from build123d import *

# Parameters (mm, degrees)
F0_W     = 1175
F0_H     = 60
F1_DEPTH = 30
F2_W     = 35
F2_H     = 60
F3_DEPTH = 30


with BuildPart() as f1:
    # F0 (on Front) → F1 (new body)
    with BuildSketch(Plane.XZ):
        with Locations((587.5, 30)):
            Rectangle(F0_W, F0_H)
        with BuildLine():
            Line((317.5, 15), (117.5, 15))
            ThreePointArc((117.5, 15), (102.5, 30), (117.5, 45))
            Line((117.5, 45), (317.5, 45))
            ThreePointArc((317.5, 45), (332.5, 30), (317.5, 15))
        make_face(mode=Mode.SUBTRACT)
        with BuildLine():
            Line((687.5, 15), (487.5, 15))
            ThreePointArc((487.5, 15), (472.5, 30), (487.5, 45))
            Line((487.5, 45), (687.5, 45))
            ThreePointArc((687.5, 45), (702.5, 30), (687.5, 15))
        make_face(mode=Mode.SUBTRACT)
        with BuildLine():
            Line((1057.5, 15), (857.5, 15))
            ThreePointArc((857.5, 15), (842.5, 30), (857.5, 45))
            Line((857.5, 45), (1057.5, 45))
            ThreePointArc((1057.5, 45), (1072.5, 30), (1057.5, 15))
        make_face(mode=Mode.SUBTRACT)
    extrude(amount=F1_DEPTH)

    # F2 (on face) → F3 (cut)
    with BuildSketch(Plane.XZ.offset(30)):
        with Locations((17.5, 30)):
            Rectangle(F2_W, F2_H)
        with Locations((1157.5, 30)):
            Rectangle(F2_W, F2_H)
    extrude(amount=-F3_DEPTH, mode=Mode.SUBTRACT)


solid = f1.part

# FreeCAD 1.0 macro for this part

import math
import FreeCAD as App
import Part
import Sketcher

V = App.Vector


def add_polygon(sketch, points):
    """Adds a closed chain of lines whose ends are joined by coincident constraints."""
    first, n = sketch.GeometryCount, len(points)
    for a, b in zip(points, points[1:] + points[:1]):
        sketch.addGeometry(Part.LineSegment(App.Vector(*a, 0), App.Vector(*b, 0)), False)
    for i in range(n):
        sketch.addConstraint(Sketcher.Constraint("Coincident", first + i, 2, first + (i + 1) % n, 1))

doc = App.newDocument("Part")
body = doc.addObject("PartDesign::Body", "Body")

# Sketch on XZ plane
sketch1 = body.newObject("Sketcher::SketchObject", "Sketch")
sketch1.AttachmentSupport = (doc.getObject("XZ_Plane"), [""])
sketch1.MapMode = "FlatFace"
add_polygon(sketch1, [(0, 60), (0, 0), (1175, 0), (1175, 60)])  # lines 0-3
sketch1.addGeometry(Part.ArcOfCircle(Part.Circle(V(318, 30, 0), V(0, 0, 1), 15), math.radians(-90), math.radians(90)), False)  # 4
sketch1.addGeometry(Part.LineSegment(V(318, 15, 0), V(118, 15, 0)), False)  # 5
sketch1.addGeometry(Part.ArcOfCircle(Part.Circle(V(118, 30, 0), V(0, 0, 1), 15), math.radians(90), math.radians(270)), False)  # 6
sketch1.addGeometry(Part.LineSegment(V(118, 45, 0), V(318, 45, 0)), False)  # 7
sketch1.addGeometry(Part.ArcOfCircle(Part.Circle(V(688, 30, 0), V(0, 0, 1), 15), math.radians(-90), math.radians(90)), False)  # 8
sketch1.addGeometry(Part.LineSegment(V(688, 15, 0), V(488, 15, 0)), False)  # 9
sketch1.addGeometry(Part.ArcOfCircle(Part.Circle(V(488, 30, 0), V(0, 0, 1), 15), math.radians(90), math.radians(270)), False)  # 10
sketch1.addGeometry(Part.LineSegment(V(488, 45, 0), V(688, 45, 0)), False)  # 11
sketch1.addGeometry(Part.ArcOfCircle(Part.Circle(V(1058, 30, 0), V(0, 0, 1), 15), math.radians(-90), math.radians(90)), False)  # 12
sketch1.addGeometry(Part.LineSegment(V(1058, 15, 0), V(858, 15, 0)), False)  # 13
sketch1.addGeometry(Part.ArcOfCircle(Part.Circle(V(858, 30, 0), V(0, 0, 1), 15), math.radians(90), math.radians(270)), False)  # 14
sketch1.addGeometry(Part.LineSegment(V(858, 45, 0), V(1058, 45, 0)), False)  # 15
sketch1.addConstraint(Sketcher.Constraint("Tangent", 4, 1, 5, 1))
sketch1.addConstraint(Sketcher.Constraint("Tangent", 5, 2, 6, 2))
sketch1.addConstraint(Sketcher.Constraint("Tangent", 6, 1, 7, 1))
sketch1.addConstraint(Sketcher.Constraint("Tangent", 7, 2, 4, 2))
sketch1.addConstraint(Sketcher.Constraint("Tangent", 8, 1, 9, 1))
sketch1.addConstraint(Sketcher.Constraint("Tangent", 9, 2, 10, 2))
sketch1.addConstraint(Sketcher.Constraint("Tangent", 10, 1, 11, 1))
sketch1.addConstraint(Sketcher.Constraint("Tangent", 11, 2, 8, 2))
sketch1.addConstraint(Sketcher.Constraint("Tangent", 12, 1, 13, 1))
sketch1.addConstraint(Sketcher.Constraint("Tangent", 13, 2, 14, 2))
sketch1.addConstraint(Sketcher.Constraint("Tangent", 14, 1, 15, 1))
sketch1.addConstraint(Sketcher.Constraint("Tangent", 15, 2, 12, 2))
sketch1.addConstraint(Sketcher.Constraint("Vertical", 0))
sketch1.addConstraint(Sketcher.Constraint("Horizontal", 1))
sketch1.addConstraint(Sketcher.Constraint("Vertical", 2))
sketch1.addConstraint(Sketcher.Constraint("Horizontal", 3))
sketch1.addConstraint(Sketcher.Constraint("Horizontal", 5))
sketch1.addConstraint(Sketcher.Constraint("Horizontal", 7))
sketch1.addConstraint(Sketcher.Constraint("Horizontal", 9))
sketch1.addConstraint(Sketcher.Constraint("Horizontal", 11))
sketch1.addConstraint(Sketcher.Constraint("Horizontal", 13))
sketch1.addConstraint(Sketcher.Constraint("Horizontal", 15))
sketch1.addConstraint(Sketcher.Constraint("Coincident", 0, 2, -1, 1))
sketch1.addConstraint(Sketcher.Constraint("Equal", 6, 8))
sketch1.addConstraint(Sketcher.Constraint("Equal", 10, 12))
sketch1.addConstraint(Sketcher.Constraint("Horizontal", 6, 3, 8, 3))
sketch1.addConstraint(Sketcher.Constraint("Horizontal", 10, 3, 12, 3))
sketch1.addConstraint(Sketcher.Constraint("Equal", 7, 9))
sketch1.addConstraint(Sketcher.Constraint("Equal", 11, 13))
sketch1.addConstraint(Sketcher.Constraint("Radius", 4, 15.0))
sketch1.addConstraint(Sketcher.Constraint("DistanceX", 1, 1, 1, 2, 1175.0))
sketch1.addConstraint(Sketcher.Constraint("DistanceX", 5, 2, 5, 1, 200.0))
sketch1.addConstraint(Sketcher.Constraint("DistanceY", 0, 2, 0, 1, 60.0))
sketch1.addConstraint(Sketcher.Constraint("DistanceY", -1, 1, 4, 3, 30.0))
sketch1.addConstraint(Sketcher.Constraint("DistanceX", 4, 3, 8, 3, 370.0))
sketch1.addConstraint(Sketcher.Constraint("DistanceX", 8, 3, 12, 3, 370.0))
sketch1.addConstraint(Sketcher.Constraint("DistanceX", -1, 1, 4, 3, 317.5))
pad1 = body.newObject("PartDesign::Pad", "Pad")
pad1.Profile = sketch1
pad1.Length = 30

# Sketch on XZ plane
sketch2 = body.newObject("Sketcher::SketchObject", "Sketch001")
sketch2.AttachmentSupport = (doc.getObject("XZ_Plane"), [""])
sketch2.MapMode = "FlatFace"
sketch2.AttachmentOffset = App.Placement(V(0, 0, 30), App.Rotation())
add_polygon(sketch2, [(0, 60), (0, 0), (35, 0), (35, 60)])  # lines 0-3
add_polygon(sketch2, [(1140, 60), (1140, 0), (1175, 0), (1175, 60)])  # lines 4-7
sketch2.addConstraint(Sketcher.Constraint("Vertical", 0))
sketch2.addConstraint(Sketcher.Constraint("Horizontal", 1))
sketch2.addConstraint(Sketcher.Constraint("Vertical", 2))
sketch2.addConstraint(Sketcher.Constraint("Horizontal", 3))
sketch2.addConstraint(Sketcher.Constraint("Vertical", 4))
sketch2.addConstraint(Sketcher.Constraint("Horizontal", 5))
sketch2.addConstraint(Sketcher.Constraint("Vertical", 6))
sketch2.addConstraint(Sketcher.Constraint("Horizontal", 7))
sketch2.addConstraint(Sketcher.Constraint("Coincident", 0, 2, -1, 1))
sketch2.addConstraint(Sketcher.Constraint("PointOnObject", 4, 2, -1))
sketch2.addConstraint(Sketcher.Constraint("Horizontal", 3, 2, 6, 2))
sketch2.addConstraint(Sketcher.Constraint("Equal", 3, 5))
sketch2.addConstraint(Sketcher.Constraint("DistanceX", 1, 1, 1, 2, 35.0))
sketch2.addConstraint(Sketcher.Constraint("DistanceY", 0, 2, 0, 1, 60.0))
sketch2.addConstraint(Sketcher.Constraint("DistanceX", -1, 1, 4, 2, 1140.0))
pocket1 = body.newObject("PartDesign::Pocket", "Pocket")
pocket1.Profile = sketch2
pocket1.Length = 30

doc.recompute()
